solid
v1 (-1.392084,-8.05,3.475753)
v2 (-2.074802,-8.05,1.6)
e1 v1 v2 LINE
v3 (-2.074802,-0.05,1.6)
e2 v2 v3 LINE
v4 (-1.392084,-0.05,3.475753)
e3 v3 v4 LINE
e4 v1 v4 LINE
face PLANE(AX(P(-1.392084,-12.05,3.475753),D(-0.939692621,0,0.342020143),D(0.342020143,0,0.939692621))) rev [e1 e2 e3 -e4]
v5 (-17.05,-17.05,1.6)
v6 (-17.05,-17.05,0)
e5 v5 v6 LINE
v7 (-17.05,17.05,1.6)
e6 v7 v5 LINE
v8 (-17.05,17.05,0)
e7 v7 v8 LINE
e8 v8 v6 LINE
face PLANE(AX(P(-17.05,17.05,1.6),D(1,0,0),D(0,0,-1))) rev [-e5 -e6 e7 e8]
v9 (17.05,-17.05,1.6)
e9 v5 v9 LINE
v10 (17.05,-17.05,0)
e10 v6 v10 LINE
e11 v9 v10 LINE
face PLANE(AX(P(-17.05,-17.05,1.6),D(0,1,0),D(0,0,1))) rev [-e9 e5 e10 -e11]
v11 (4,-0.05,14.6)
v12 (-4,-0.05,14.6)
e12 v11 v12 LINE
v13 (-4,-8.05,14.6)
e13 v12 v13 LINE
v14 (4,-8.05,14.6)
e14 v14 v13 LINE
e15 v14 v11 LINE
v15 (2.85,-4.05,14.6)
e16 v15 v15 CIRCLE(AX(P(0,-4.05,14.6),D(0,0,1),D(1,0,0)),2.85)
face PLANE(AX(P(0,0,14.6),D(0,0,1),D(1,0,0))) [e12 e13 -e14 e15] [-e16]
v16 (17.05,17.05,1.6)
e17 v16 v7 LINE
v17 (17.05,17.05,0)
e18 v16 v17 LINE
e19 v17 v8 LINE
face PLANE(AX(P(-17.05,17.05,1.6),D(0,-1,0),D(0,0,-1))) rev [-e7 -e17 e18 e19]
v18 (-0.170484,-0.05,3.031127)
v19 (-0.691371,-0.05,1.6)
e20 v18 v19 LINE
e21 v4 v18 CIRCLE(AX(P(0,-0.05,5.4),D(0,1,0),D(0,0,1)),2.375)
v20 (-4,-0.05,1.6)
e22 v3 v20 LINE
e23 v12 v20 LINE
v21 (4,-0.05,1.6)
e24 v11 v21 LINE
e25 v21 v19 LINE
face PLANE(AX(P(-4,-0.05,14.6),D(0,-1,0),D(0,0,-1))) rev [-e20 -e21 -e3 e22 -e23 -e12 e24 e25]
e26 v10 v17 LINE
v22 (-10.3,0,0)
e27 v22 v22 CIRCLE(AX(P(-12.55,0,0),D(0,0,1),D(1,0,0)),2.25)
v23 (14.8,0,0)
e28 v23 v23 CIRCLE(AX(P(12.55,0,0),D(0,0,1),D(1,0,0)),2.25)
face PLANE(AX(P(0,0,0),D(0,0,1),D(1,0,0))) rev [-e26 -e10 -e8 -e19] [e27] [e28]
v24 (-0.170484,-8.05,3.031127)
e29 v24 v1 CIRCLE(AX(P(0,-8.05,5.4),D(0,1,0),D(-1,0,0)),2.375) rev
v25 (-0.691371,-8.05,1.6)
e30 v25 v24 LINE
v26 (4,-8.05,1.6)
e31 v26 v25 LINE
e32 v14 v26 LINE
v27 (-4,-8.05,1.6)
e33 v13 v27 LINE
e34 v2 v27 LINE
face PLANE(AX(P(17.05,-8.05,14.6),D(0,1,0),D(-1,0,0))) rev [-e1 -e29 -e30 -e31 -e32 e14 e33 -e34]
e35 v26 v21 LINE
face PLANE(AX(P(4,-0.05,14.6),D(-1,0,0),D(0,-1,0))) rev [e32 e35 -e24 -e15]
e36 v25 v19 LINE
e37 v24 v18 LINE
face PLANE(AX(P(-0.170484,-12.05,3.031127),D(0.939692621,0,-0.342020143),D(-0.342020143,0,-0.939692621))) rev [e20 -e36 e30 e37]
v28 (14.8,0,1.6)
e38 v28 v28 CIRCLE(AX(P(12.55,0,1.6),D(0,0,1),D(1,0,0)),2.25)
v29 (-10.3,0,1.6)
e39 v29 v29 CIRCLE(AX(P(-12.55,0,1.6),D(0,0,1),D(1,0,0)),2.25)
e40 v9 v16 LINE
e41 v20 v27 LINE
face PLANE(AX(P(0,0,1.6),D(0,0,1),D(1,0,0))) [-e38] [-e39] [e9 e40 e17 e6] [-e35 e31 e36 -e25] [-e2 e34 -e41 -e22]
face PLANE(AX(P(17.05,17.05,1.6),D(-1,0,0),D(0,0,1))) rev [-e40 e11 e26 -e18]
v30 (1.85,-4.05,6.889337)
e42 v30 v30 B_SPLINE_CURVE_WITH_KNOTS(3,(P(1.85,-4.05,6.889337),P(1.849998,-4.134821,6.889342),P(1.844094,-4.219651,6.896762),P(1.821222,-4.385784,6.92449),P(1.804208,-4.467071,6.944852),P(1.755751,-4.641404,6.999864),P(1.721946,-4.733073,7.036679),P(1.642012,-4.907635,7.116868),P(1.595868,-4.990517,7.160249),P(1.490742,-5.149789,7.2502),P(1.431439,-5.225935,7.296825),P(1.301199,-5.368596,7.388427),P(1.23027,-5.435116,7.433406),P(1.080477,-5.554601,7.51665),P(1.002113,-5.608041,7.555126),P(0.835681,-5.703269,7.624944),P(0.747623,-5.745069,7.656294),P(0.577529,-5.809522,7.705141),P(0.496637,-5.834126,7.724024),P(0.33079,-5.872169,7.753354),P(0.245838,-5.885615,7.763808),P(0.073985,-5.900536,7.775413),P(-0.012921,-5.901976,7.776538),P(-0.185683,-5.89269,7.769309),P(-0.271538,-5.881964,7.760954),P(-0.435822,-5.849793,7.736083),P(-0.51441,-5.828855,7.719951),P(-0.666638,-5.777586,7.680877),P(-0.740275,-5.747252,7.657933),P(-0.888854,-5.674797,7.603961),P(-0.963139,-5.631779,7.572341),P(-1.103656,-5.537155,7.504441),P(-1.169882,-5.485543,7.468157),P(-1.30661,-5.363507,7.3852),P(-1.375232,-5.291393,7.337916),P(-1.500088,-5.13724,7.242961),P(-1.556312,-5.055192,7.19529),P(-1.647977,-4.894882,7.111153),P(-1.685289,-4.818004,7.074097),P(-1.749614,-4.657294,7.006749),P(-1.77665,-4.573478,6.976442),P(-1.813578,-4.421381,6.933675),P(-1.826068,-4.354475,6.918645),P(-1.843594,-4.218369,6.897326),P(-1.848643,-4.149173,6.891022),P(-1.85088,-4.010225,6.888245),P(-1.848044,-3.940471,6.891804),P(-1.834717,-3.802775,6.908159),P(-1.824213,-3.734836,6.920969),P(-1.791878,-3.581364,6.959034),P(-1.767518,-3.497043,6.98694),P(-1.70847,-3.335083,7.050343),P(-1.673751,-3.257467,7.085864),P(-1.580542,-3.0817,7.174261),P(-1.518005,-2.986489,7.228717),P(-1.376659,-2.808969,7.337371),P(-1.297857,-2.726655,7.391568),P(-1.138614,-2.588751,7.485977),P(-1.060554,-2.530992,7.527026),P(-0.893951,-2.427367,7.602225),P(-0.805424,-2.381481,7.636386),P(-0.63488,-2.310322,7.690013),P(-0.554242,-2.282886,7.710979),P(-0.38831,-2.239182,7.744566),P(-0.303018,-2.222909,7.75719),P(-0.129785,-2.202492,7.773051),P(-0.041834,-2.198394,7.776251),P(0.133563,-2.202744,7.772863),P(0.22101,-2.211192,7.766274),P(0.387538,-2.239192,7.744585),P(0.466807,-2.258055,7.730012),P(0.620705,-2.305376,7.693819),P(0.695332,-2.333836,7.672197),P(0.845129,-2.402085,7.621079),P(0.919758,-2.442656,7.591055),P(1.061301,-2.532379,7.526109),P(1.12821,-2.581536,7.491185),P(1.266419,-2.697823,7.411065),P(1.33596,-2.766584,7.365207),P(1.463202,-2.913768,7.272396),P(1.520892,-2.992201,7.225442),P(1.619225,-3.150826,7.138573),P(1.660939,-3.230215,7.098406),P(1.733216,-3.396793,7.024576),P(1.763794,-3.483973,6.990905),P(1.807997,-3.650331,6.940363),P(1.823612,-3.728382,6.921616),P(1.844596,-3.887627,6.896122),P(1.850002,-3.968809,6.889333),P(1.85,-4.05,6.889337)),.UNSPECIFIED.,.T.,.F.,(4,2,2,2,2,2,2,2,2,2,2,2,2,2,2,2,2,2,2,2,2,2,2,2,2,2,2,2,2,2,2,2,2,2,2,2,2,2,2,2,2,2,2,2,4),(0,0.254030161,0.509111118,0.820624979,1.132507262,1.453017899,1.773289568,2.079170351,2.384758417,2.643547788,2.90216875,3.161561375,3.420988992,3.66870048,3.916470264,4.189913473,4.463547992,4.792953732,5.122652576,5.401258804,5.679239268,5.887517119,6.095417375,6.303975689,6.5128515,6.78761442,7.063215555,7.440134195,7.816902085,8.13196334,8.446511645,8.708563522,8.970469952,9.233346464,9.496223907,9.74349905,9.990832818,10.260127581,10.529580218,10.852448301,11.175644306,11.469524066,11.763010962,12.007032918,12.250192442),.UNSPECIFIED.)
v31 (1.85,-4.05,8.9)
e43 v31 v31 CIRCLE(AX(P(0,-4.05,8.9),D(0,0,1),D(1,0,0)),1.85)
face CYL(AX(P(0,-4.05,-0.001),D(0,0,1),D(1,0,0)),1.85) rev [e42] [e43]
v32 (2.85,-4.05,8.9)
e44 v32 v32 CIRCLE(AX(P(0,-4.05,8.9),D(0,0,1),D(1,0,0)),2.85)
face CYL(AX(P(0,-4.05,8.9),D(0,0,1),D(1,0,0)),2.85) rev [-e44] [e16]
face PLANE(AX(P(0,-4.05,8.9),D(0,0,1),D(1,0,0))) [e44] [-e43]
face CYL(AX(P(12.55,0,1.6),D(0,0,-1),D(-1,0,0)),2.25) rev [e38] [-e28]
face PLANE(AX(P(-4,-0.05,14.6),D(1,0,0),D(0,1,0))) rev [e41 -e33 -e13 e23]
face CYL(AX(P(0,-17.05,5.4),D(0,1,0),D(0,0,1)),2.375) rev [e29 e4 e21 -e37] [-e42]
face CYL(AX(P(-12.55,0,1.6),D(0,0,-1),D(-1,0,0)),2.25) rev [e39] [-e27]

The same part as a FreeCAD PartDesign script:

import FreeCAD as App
import Part
import Sketcher
Q = App.Units.Quantity

doc = App.newDocument("Part")
body = doc.addObject("PartDesign::Body", "Body")

# Sketch on XY plane
sketch1 = body.newObject("Sketcher::SketchObject", "Sketch")
sketch1.AttachmentSupport = (doc.getObject("XY_Plane"), [""])
sketch1.MapMode = "FlatFace"
sketch1.addGeometry(Part.LineSegment(App.Vector(-17.1, 17.1, 0), App.Vector(-17.1, -17.1, 0)), False)
sketch1.addGeometry(Part.LineSegment(App.Vector(-17.1, -17.1, 0), App.Vector(17.1, -17.1, 0)), False)
sketch1.addGeometry(Part.LineSegment(App.Vector(17.1, -17.1, 0), App.Vector(17.1, 17.1, 0)), False)
sketch1.addGeometry(Part.LineSegment(App.Vector(17.1, 17.1, 0), App.Vector(-17.1, 17.1, 0)), False)
sketch1.addGeometry(Part.Circle(App.Vector(-12.6, 0, 0), App.Vector(0, 0, 1), 2.2), False)
sketch1.addGeometry(Part.Circle(App.Vector(12.6, 0, 0), App.Vector(0, 0, 1), 2.2), False)
sketch1.addConstraint(Sketcher.Constraint("Coincident", 0, 2, 1, 1))
sketch1.addConstraint(Sketcher.Constraint("Coincident", 1, 2, 2, 1))
sketch1.addConstraint(Sketcher.Constraint("Coincident", 2, 2, 3, 1))
sketch1.addConstraint(Sketcher.Constraint("Coincident", 3, 2, 0, 1))
sketch1.addConstraint(Sketcher.Constraint("Vertical", 0))
sketch1.addConstraint(Sketcher.Constraint("Horizontal", 1))
sketch1.addConstraint(Sketcher.Constraint("Vertical", 2))
sketch1.addConstraint(Sketcher.Constraint("Horizontal", 3))
sketch1.addConstraint(Sketcher.Constraint("Equal", 4, 5))
sketch1.addConstraint(Sketcher.Constraint("Symmetric", 4, 3, 5, 3, -1, 1))
sketch1.addConstraint(Sketcher.Constraint("Symmetric", 0, 2, 2, 2, -1, 1))
sketch1.addConstraint(Sketcher.Constraint("PointOnObject", 4, 3, -1))
sketch1.addConstraint(Sketcher.Constraint("Equal", 3, 0))
sketch1.addConstraint(Sketcher.Constraint("Diameter", 4, 4.5))
sketch1.addConstraint(Sketcher.Constraint("DistanceX", 1, 1, 1, 2, 34.1))
sketch1.addConstraint(Sketcher.Constraint("DistanceX", 4, 3, 5, 3, 25.1))
pad1 = body.newObject("PartDesign::Pad", "Pad")
pad1.Profile = sketch1
pad1.Length = 1.6

# Sketch on XY plane
sketch2 = body.newObject("Sketcher::SketchObject", "Sketch001")
sketch2.AttachmentSupport = (doc.getObject("XY_Plane"), [""])
sketch2.MapMode = "FlatFace"
sketch2.AttachmentOffset = App.Placement(App.Vector(0, 0, 1.6), App.Rotation())
sketch2.addGeometry(Part.LineSegment(App.Vector(-4, 0, 0), App.Vector(-4, -17, 0)), False)
sketch2.addGeometry(Part.LineSegment(App.Vector(-4, -17, 0), App.Vector(4, -17, 0)), False)
sketch2.addGeometry(Part.LineSegment(App.Vector(4, -17, 0), App.Vector(4, 0, 0)), False)
sketch2.addGeometry(Part.LineSegment(App.Vector(4, 0, 0), App.Vector(-4, 0, 0)), False)
sketch2.addConstraint(Sketcher.Constraint("Coincident", 0, 2, 1, 1))
sketch2.addConstraint(Sketcher.Constraint("Coincident", 1, 2, 2, 1))
sketch2.addConstraint(Sketcher.Constraint("Coincident", 2, 2, 3, 1))
sketch2.addConstraint(Sketcher.Constraint("Coincident", 3, 2, 0, 1))
sketch2.addConstraint(Sketcher.Constraint("Vertical", 0))
sketch2.addConstraint(Sketcher.Constraint("Horizontal", 1))
sketch2.addConstraint(Sketcher.Constraint("Vertical", 2))
sketch2.addConstraint(Sketcher.Constraint("Horizontal", 3))
sketch2.addConstraint(Sketcher.Constraint("DistanceX", 1, 1, 1, 2, 8.0))
sketch2.addConstraint(Sketcher.Constraint("DistanceY", 0, 2, 0, 1, 17.0))
sketch2.addConstraint(Sketcher.Constraint("DistanceX", 0, 2, -1, 1, 4.0))
sketch2.addConstraint(Sketcher.Constraint("DistanceY", 0, 2, -1, 1, 17.05))
pad2 = body.newObject("PartDesign::Pad", "Pad001")
pad2.Profile = sketch2
pad2.Length = 13

# Sketch on XZ plane
sketch3 = body.newObject("Sketcher::SketchObject", "Sketch002")
sketch3.AttachmentSupport = (doc.getObject("XZ_Plane"), [""])
sketch3.MapMode = "FlatFace"
sketch3.AttachmentOffset = App.Placement(App.Vector(0, 0, 0.05), App.Rotation())
sketch3.addGeometry(Part.Circle(App.Vector(0, 5.4, 0), App.Vector(0, 0, 1), 2.4), False)
sketch3.addConstraint(Sketcher.Constraint("PointOnObject", 0, 3, -2))
sketch3.addConstraint(Sketcher.Constraint("Diameter", 0, 4.75))
sketch3.addConstraint(Sketcher.Constraint("DistanceY", -1, 1, 0, 3, 5.4))
pocket1 = body.newObject("PartDesign::Pocket", "Pocket")
pocket1.Profile = sketch3
pocket1.Type = "ThroughAll"
pocket1.Reversed = True

# Sketch on XZ plane
sketch4 = body.newObject("Sketcher::SketchObject", "Sketch003")
sketch4.AttachmentSupport = (doc.getObject("XZ_Plane"), [""])
sketch4.MapMode = "FlatFace"
sketch4.AttachmentOffset = App.Placement(App.Vector(0, 0, 0.05), App.Rotation())
sketch4.addGeometry(Part.LineSegment(App.Vector(-2.1, 1.6, 0), App.Vector(-1.4, 3.5, 0)), False)
sketch4.addGeometry(Part.LineSegment(App.Vector(-1.4, 3.5, 0), App.Vector(-0.2, 3, 0)), False)
sketch4.addGeometry(Part.LineSegment(App.Vector(-0.2, 3, 0), App.Vector(-0.7, 1.6, 0)), False)
sketch4.addGeometry(Part.LineSegment(App.Vector(-0.7, 1.6, 0), App.Vector(-2.1, 1.6, 0)), False)
sketch4.addConstraint(Sketcher.Constraint("Coincident", 0, 2, 1, 1))
sketch4.addConstraint(Sketcher.Constraint("Coincident", 1, 2, 2, 1))
sketch4.addConstraint(Sketcher.Constraint("Coincident", 2, 2, 3, 1))
sketch4.addConstraint(Sketcher.Constraint("Coincident", 3, 2, 0, 1))
sketch4.addConstraint(Sketcher.Constraint("Horizontal", 3))
sketch4.addConstraint(Sketcher.Constraint("Perpendicular", 0, 1))
sketch4.addConstraint(Sketcher.Constraint("Perpendicular", 1, 2))
sketch4.addConstraint(Sketcher.Constraint("Angle", 0, Q("70 deg")))
sketch4.addConstraint(Sketcher.Constraint("Distance", 1, 1.3))
sketch4.addConstraint(Sketcher.Constraint("DistanceY", -1, 1, 2, 2, 1.6))
sketch4.addConstraint(Sketcher.Constraint("DistanceX", 2, 2, -1, 1, 0.691371))
sketch4.addConstraint(Sketcher.Constraint("DistanceX", 3, 2, 0, 2, 0.682718))
pocket2 = body.newObject("PartDesign::Pocket", "Pocket001")
pocket2.Profile = sketch4
pocket2.Length = 12
pocket2.Reversed = True

# Sketch on XY plane
sketch5 = body.newObject("Sketcher::SketchObject", "Sketch004")
sketch5.AttachmentSupport = (doc.getObject("XY_Plane"), [""])
sketch5.MapMode = "FlatFace"
sketch5.AttachmentOffset = App.Placement(App.Vector(0, 0, 14.6), App.Rotation())
sketch5.addGeometry(Part.Circle(App.Vector(0, -12.6, 0), App.Vector(0, 0, 1), 2.9), False)
sketch5.addGeometry(Part.Circle(App.Vector(0, -4, 0), App.Vector(0, 0, 1), 2.9), False)
sketch5.addConstraint(Sketcher.Constraint("Equal", 0, 1))
sketch5.addConstraint(Sketcher.Constraint("PointOnObject", 0, 3, -2))
sketch5.addConstraint(Sketcher.Constraint("PointOnObject", 1, 3, -2))
sketch5.addConstraint(Sketcher.Constraint("Diameter", 0, 5.7))
sketch5.addConstraint(Sketcher.Constraint("DistanceY", 0, 3, 1, 3, 8.5))
sketch5.addConstraint(Sketcher.Constraint("DistanceY", 0, 3, -1, 1, 12.55))
pocket3 = body.newObject("PartDesign::Pocket", "Pocket002")
pocket3.Profile = sketch5
pocket3.Length = 5.7

# Sketch on XY plane
sketch6 = body.newObject("Sketcher::SketchObject", "Sketch005")
sketch6.AttachmentSupport = (doc.getObject("XY_Plane"), [""])
sketch6.MapMode = "FlatFace"
sketch6.AttachmentOffset = App.Placement(App.Vector(0, 0, 8.9), App.Rotation())
sketch6.addGeometry(Part.Circle(App.Vector(0, -4, 0), App.Vector(0, 0, 1), 1.9), False)
sketch6.addConstraint(Sketcher.Constraint("PointOnObject", 0, 3, -2))
sketch6.addConstraint(Sketcher.Constraint("Diameter", 0, 3.7))
sketch6.addConstraint(Sketcher.Constraint("DistanceY", 0, 3, -1, 1, 4.05))
pocket4 = body.newObject("PartDesign::Pocket", "Pocket003")
pocket4.Profile = sketch6
pocket4.Type = "UpToFirst"

# Sketch on XY plane
sketch7 = body.newObject("Sketcher::SketchObject", "Sketch006")
sketch7.AttachmentSupport = (doc.getObject("XY_Plane"), [""])
sketch7.MapMode = "FlatFace"
sketch7.AttachmentOffset = App.Placement(App.Vector(0, 0, 8.9), App.Rotation())
sketch7.addGeometry(Part.Circle(App.Vector(0, -12.6, 0), App.Vector(0, 0, 1), 1.9), False)
sketch7.addConstraint(Sketcher.Constraint("PointOnObject", 0, 3, -2))
sketch7.addConstraint(Sketcher.Constraint("Diameter", 0, 3.7))
sketch7.addConstraint(Sketcher.Constraint("DistanceY", 0, 3, -1, 1, 12.55))
pocket5 = body.newObject("PartDesign::Pocket", "Pocket004")
pocket5.Profile = sketch7
pocket5.Type = "UpToFirst"

# Sketch on YZ plane
sketch8 = body.newObject("Sketcher::SketchObject", "Sketch007")
sketch8.AttachmentSupport = (doc.getObject("YZ_Plane"), [""])
sketch8.MapMode = "FlatFace"
sketch8.AttachmentOffset = App.Placement(App.Vector(0, 0, -4), App.Rotation())
sketch8.addGeometry(Part.LineSegment(App.Vector(-8, 2, 0), App.Vector(-17, 2, 0)), False)
sketch8.addGeometry(Part.LineSegment(App.Vector(-17, 2, 0), App.Vector(-17, 15, 0)), False)
sketch8.addGeometry(Part.LineSegment(App.Vector(-17, 15, 0), App.Vector(-8, 15, 0)), False)
sketch8.addGeometry(Part.LineSegment(App.Vector(-8, 15, 0), App.Vector(-8, 2, 0)), False)
sketch8.addConstraint(Sketcher.Constraint("Coincident", 0, 2, 1, 1))
sketch8.addConstraint(Sketcher.Constraint("Coincident", 1, 2, 2, 1))
sketch8.addConstraint(Sketcher.Constraint("Coincident", 2, 2, 3, 1))
sketch8.addConstraint(Sketcher.Constraint("Coincident", 3, 2, 0, 1))
sketch8.addConstraint(Sketcher.Constraint("Horizontal", 0))
sketch8.addConstraint(Sketcher.Constraint("Vertical", 1))
sketch8.addConstraint(Sketcher.Constraint("Horizontal", 2))
sketch8.addConstraint(Sketcher.Constraint("Vertical", 3))
sketch8.addConstraint(Sketcher.Constraint("DistanceX", 0, 2, 0, 1, 9.0))
sketch8.addConstraint(Sketcher.Constraint("DistanceY", 1, 1, 1, 2, 13.0))
sketch8.addConstraint(Sketcher.Constraint("DistanceY", -1, 1, 0, 2, 1.6))
sketch8.addConstraint(Sketcher.Constraint("DistanceX", 0, 2, -1, 1, 17.05))
pocket6 = body.newObject("PartDesign::Pocket", "Pocket005")
pocket6.Profile = sketch8
pocket6.Type = "ThroughAll"
pocket6.Reversed = True

doc.recompute()
